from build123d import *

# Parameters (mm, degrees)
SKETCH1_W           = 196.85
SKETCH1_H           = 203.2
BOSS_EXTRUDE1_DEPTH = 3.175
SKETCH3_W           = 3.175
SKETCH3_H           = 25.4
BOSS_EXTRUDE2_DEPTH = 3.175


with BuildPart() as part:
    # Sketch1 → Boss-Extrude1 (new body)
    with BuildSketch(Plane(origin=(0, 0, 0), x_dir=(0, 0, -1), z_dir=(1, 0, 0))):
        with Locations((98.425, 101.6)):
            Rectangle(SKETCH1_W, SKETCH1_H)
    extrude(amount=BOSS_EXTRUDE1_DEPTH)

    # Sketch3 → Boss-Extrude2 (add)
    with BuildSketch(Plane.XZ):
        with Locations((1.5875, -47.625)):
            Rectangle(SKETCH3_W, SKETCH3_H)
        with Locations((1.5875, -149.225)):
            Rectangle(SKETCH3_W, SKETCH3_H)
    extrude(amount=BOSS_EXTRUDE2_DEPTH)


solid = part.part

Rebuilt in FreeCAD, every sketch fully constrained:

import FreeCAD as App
import Part
import Sketcher

V = App.Vector
Q = App.Units.Quantity

doc = App.newDocument("Part")
params = doc.addObject("Spreadsheet::Sheet", "Params")
for row, (alias, value) in enumerate([
    ("sketch1_width", "8 in"),
    ("sketch1_height", "7.75 in"),
    ("pad1_length", "0.125 in"),
    ("sketch2_height", "1 in"),
    ("sketch2_width", "0.125 in"),
    ("pad2_length", "0.125 in"),
], start=1):
    params.set(f"A{row}", alias)
    params.set(f"B{row}", "=" + value)
    params.setAlias(f"B{row}", alias)

body = doc.addObject("PartDesign::Body", "Body")

# Sketch on YZ plane
sketch1 = body.newObject("Sketcher::SketchObject", "Sketch")
sketch1.AttachmentSupport = (doc.getObject("YZ_Plane"), [""])
sketch1.MapMode = "FlatFace"
sketch1.addGeometry([
    Part.LineSegment(V(203, 0, 0), V(0, 0, 0)),
    Part.LineSegment(V(0, 0, 0), V(0, -197, 0)),
    Part.LineSegment(V(0, -197, 0), V(203, -197, 0)),
    Part.LineSegment(V(203, -197, 0), V(203, 0, 0)),
], False)
sketch1.addConstraint([
    Sketcher.Constraint("Coincident", 0, 2, 1, 1),
    Sketcher.Constraint("Coincident", 1, 2, 2, 1),
    Sketcher.Constraint("Coincident", 2, 2, 3, 1),
    Sketcher.Constraint("Coincident", 3, 2, 0, 1),
    Sketcher.Constraint("Horizontal", 0),
    Sketcher.Constraint("Vertical", 1),
    Sketcher.Constraint("Horizontal", 2),
    Sketcher.Constraint("Vertical", 3),
    Sketcher.Constraint("Coincident", 0, 2, -1, 1),
    Sketcher.Constraint("DistanceX", 0, 2, 0, 1, Q("8 in")),
    Sketcher.Constraint("DistanceY", 1, 2, 1, 1, Q("7.75 in")),
])
sketch1.setExpression("Constraints[9]", "Params.sketch1_width")
sketch1.setExpression("Constraints[10]", "Params.sketch1_height")
pad1 = body.newObject("PartDesign::Pad", "Pad")
pad1.Profile = sketch1
pad1.setExpression("Length", "Params.pad1_length")

# Sketch on XZ plane
sketch2 = body.newObject("Sketcher::SketchObject", "Sketch001")
sketch2.AttachmentSupport = (doc.getObject("XZ_Plane"), [""])
sketch2.MapMode = "FlatFace"
sketch2.addGeometry([
    Part.LineSegment(V(0, -34.9, 0), V(0, -60.3, 0)),  # 0
    Part.LineSegment(V(0, -60.3, 0), V(3.2, -60.3, 0)),  # 1
    Part.LineSegment(V(3.2, -60.3, 0), V(3.2, -34.9, 0)),  # 2
    Part.LineSegment(V(3.2, -34.9, 0), V(0, -34.9, 0)),  # 3
    Part.LineSegment(V(0, -136.5, 0), V(0, -161.9, 0)),  # 4
    Part.LineSegment(V(0, -161.9, 0), V(3.2, -161.9, 0)),  # 5
    Part.LineSegment(V(3.2, -161.9, 0), V(3.2, -136.5, 0)),  # 6
    Part.LineSegment(V(3.2, -136.5, 0), V(0, -136.5, 0)),  # 7
], False)
sketch2.addConstraint([
    Sketcher.Constraint("Coincident", 0, 2, 1, 1),
    Sketcher.Constraint("Coincident", 1, 2, 2, 1),
    Sketcher.Constraint("Coincident", 2, 2, 3, 1),
    Sketcher.Constraint("Coincident", 3, 2, 0, 1),
    Sketcher.Constraint("Coincident", 4, 2, 5, 1),
    Sketcher.Constraint("Coincident", 5, 2, 6, 1),
    Sketcher.Constraint("Coincident", 6, 2, 7, 1),
    Sketcher.Constraint("Coincident", 7, 2, 4, 1),
    Sketcher.Constraint("Vertical", 0),
    Sketcher.Constraint("Horizontal", 1),
    Sketcher.Constraint("Vertical", 2),
    Sketcher.Constraint("Horizontal", 3),
    Sketcher.Constraint("Vertical", 4),
    Sketcher.Constraint("Horizontal", 5),
    Sketcher.Constraint("Vertical", 6),
    Sketcher.Constraint("Horizontal", 7),
    Sketcher.Constraint("PointOnObject", 0, 2, -2),
    Sketcher.Constraint("PointOnObject", 4, 2, -2),
    Sketcher.Constraint("Vertical", 2, 2, 5, 2),
    Sketcher.Constraint("Equal", 2, 4),
    Sketcher.Constraint("DistanceY", 0, 2, 0, 1, Q("1 in")),
    Sketcher.Constraint("DistanceY", 4, 2, 0, 2, Q("4 in")),
    Sketcher.Constraint("DistanceX", 1, 1, 1, 2, Q("0.125 in")),
    Sketcher.Constraint("DistanceY", 0, 2, -1, 1, Q("2.375 in")),
])
sketch2.setExpression("Constraints[20]", "Params.sketch2_height")
sketch2.setExpression("Constraints[22]", "Params.sketch2_width")
pad2 = body.newObject("PartDesign::Pad", "Pad001")
pad2.Profile = sketch2
pad2.setExpression("Length", "Params.pad2_length")

doc.recompute()
